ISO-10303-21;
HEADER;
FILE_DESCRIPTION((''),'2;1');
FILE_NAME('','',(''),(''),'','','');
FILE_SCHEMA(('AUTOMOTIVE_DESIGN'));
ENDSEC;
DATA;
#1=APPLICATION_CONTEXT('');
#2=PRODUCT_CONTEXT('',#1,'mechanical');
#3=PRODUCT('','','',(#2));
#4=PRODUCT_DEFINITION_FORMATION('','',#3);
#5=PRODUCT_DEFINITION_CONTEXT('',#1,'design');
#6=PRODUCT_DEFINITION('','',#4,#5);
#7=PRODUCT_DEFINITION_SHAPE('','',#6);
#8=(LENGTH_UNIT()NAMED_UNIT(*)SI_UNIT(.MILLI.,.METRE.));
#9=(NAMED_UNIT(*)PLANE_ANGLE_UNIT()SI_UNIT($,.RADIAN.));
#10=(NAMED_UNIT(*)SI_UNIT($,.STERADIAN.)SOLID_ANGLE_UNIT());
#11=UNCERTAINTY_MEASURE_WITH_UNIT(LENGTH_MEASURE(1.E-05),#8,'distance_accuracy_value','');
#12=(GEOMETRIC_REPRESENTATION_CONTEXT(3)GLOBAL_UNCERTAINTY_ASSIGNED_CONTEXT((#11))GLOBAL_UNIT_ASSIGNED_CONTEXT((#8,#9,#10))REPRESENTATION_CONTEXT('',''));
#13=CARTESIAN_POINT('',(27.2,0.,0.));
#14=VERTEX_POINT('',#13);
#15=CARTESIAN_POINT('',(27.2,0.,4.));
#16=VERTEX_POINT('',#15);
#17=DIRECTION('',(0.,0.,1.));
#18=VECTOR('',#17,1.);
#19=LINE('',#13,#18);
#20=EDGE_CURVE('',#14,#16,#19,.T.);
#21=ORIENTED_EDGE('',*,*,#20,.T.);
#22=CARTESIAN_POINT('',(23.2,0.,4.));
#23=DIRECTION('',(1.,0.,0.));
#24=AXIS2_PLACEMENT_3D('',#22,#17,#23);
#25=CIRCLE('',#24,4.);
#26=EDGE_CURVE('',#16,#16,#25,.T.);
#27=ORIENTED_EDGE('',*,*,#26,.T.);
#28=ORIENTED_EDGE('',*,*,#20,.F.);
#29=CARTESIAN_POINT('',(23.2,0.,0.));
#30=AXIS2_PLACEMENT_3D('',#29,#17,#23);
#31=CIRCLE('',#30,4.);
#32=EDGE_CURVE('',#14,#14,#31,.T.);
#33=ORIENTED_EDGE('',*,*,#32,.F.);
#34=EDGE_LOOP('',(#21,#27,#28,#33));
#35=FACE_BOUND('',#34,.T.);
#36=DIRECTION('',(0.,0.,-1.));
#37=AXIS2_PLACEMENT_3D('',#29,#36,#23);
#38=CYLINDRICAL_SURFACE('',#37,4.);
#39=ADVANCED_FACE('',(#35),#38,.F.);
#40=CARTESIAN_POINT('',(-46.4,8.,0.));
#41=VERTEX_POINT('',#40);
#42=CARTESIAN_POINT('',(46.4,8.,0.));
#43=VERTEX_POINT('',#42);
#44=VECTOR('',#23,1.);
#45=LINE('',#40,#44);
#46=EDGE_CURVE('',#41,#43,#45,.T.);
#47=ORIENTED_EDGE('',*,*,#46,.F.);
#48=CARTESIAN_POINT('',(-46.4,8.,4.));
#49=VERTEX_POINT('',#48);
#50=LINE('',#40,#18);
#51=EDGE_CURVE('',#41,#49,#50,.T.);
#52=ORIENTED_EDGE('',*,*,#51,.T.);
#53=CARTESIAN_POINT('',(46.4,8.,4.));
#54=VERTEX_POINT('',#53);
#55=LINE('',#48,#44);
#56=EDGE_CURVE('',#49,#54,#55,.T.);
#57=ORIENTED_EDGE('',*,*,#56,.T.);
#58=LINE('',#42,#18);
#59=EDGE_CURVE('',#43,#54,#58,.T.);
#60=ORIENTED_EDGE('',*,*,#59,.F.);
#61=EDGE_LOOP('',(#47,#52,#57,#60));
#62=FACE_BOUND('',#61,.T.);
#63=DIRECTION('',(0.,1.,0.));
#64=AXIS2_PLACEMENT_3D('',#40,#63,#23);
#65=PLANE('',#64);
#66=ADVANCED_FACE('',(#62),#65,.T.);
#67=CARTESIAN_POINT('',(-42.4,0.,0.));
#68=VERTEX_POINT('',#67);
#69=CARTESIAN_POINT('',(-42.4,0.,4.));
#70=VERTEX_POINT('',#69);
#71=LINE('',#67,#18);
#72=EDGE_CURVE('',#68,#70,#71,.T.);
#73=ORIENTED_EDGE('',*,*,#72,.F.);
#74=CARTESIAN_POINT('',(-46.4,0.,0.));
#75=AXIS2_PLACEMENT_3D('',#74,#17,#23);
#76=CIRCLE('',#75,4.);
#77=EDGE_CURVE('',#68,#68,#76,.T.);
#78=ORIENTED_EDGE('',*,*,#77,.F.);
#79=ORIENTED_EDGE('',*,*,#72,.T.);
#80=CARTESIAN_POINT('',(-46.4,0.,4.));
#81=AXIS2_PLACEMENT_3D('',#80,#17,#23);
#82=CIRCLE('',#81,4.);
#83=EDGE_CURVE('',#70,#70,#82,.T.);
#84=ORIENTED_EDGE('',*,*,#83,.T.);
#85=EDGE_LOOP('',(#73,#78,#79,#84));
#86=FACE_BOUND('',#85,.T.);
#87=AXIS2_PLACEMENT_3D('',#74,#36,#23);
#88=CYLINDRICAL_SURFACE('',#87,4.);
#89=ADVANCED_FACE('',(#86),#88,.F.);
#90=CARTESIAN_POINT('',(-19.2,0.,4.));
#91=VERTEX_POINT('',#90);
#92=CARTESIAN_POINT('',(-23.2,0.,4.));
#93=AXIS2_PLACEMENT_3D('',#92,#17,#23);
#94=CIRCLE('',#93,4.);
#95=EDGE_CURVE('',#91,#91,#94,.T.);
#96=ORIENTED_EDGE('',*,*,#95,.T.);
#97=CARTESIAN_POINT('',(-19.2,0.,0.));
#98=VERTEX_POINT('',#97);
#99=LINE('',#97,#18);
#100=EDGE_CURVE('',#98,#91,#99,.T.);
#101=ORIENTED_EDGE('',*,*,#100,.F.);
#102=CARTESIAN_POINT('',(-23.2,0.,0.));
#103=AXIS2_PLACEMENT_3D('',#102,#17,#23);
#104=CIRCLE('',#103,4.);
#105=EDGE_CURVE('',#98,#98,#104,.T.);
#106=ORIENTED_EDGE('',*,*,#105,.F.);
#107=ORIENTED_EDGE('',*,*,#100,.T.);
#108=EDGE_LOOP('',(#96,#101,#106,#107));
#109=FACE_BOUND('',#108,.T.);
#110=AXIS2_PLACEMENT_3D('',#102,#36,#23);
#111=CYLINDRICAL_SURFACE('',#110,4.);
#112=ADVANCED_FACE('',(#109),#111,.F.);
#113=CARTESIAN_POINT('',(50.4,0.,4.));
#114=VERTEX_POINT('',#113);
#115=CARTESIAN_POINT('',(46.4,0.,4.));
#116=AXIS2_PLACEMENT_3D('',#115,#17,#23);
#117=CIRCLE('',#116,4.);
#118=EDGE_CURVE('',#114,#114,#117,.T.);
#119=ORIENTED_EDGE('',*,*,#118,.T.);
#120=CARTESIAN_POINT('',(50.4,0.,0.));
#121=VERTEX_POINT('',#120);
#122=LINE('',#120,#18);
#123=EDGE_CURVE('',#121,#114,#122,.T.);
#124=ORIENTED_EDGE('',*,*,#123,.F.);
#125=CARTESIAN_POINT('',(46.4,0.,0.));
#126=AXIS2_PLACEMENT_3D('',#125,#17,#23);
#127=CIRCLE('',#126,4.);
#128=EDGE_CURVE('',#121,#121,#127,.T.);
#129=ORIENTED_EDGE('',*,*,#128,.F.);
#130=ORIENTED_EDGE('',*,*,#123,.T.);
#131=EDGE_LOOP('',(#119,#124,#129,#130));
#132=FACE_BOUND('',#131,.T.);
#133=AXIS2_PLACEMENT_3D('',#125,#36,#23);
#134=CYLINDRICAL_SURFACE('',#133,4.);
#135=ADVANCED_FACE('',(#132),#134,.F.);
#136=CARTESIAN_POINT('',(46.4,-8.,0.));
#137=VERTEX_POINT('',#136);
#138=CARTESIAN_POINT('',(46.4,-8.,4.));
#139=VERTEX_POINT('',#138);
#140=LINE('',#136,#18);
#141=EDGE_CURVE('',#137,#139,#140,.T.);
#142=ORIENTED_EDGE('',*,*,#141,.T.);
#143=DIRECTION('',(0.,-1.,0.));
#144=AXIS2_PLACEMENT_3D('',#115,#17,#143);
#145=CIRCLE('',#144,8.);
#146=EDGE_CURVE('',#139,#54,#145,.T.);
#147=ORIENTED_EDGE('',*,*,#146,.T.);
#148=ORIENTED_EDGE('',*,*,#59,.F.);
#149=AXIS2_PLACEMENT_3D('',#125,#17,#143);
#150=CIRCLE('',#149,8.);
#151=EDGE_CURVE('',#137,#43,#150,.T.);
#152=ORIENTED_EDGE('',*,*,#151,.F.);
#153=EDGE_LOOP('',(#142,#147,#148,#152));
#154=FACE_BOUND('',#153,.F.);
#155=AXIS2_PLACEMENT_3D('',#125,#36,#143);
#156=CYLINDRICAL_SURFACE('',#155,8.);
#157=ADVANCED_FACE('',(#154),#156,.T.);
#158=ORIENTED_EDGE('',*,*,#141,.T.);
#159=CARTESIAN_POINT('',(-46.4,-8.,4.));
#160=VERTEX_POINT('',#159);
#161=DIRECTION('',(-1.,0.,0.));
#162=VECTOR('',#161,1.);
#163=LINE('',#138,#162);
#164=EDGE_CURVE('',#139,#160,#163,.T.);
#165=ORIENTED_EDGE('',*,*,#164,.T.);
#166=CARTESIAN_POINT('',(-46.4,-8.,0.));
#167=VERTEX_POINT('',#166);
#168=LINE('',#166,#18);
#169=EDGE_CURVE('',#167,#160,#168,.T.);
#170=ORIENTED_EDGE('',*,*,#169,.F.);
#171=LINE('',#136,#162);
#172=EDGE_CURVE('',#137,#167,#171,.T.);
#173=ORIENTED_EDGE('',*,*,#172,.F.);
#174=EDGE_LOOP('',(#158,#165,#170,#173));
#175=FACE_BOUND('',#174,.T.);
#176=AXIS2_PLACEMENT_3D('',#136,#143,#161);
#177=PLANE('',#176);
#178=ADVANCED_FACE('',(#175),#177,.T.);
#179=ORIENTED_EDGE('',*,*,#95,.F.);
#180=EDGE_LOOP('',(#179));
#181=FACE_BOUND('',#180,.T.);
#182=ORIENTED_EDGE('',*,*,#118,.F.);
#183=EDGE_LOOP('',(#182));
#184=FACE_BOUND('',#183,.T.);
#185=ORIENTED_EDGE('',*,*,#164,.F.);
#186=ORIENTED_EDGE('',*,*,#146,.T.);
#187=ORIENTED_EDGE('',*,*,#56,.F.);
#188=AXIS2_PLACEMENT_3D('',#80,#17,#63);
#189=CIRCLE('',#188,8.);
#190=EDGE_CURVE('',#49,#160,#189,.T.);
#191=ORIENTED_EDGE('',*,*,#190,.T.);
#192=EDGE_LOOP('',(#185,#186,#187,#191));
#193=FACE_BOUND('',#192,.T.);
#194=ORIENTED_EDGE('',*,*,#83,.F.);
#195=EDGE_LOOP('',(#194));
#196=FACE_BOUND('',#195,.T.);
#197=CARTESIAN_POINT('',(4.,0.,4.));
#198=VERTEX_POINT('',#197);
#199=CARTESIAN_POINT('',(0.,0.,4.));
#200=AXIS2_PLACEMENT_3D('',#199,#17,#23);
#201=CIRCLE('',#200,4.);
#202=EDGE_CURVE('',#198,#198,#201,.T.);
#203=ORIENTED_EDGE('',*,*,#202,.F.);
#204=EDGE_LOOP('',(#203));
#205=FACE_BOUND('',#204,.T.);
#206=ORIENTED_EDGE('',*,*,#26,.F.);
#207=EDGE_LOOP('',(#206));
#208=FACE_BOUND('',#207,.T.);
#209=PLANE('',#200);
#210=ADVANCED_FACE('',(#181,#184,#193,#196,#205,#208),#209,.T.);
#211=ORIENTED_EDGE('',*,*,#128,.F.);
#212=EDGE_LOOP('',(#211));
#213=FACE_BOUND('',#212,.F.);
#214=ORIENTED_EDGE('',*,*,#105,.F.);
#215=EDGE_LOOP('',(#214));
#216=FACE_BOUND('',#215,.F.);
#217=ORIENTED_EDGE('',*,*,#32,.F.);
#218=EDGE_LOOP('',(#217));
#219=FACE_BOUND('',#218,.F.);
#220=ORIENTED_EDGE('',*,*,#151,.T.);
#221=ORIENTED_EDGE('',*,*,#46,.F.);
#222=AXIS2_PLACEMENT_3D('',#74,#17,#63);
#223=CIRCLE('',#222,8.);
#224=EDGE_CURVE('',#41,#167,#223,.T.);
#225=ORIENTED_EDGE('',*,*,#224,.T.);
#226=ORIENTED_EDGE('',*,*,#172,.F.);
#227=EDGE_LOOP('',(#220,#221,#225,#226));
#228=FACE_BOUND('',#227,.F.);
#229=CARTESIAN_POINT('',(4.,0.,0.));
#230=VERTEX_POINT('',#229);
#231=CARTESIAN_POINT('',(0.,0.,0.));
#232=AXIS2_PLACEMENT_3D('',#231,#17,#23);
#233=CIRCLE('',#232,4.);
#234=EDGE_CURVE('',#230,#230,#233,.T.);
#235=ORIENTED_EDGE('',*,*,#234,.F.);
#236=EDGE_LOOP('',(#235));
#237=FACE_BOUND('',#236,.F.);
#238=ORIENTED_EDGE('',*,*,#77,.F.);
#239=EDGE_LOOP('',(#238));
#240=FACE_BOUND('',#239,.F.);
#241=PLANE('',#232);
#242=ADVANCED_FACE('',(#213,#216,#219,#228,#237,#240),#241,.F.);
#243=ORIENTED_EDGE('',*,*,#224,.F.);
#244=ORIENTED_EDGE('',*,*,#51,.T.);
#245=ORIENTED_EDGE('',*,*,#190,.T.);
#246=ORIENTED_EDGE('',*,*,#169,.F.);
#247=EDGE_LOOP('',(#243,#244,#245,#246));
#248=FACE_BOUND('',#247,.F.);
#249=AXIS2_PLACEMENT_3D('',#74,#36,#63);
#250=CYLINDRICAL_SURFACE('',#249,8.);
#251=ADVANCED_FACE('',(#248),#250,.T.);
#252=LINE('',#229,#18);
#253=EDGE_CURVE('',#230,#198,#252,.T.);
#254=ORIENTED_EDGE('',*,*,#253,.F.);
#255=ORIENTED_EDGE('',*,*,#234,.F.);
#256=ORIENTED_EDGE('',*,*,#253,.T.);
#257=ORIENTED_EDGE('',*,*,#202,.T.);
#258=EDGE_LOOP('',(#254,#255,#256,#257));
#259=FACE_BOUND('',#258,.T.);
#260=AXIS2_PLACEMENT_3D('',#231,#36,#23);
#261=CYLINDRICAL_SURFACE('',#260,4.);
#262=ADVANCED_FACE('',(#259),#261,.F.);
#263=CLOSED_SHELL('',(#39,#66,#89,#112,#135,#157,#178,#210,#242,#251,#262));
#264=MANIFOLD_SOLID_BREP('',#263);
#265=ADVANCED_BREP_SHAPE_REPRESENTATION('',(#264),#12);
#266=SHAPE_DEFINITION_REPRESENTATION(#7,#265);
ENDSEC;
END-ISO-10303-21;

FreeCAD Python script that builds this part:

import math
import FreeCAD as App
import Part
import Sketcher
from FreeCAD import Vector

doc = App.newDocument("Part")
body = doc.addObject("PartDesign::Body", "Body")

sketch1 = body.newObject("Sketcher::SketchObject", "Sketch")
sketch1.AttachmentSupport = (doc.getObject("XY_Plane"), [""])
sketch1.MapMode = "FlatFace"
sketch1.addGeometry(Part.LineSegment(Vector(46.4, 8, 0), Vector(-46.4, 8, 0)), False)
sketch1.addGeometry(Part.ArcOfCircle(Part.Circle(Vector(-46.4, 0, 0), Vector(0, 0, 1), 8), math.radians(90), math.radians(270)), False)
sketch1.addGeometry(Part.LineSegment(Vector(-46.4, -8, 0), Vector(46.4, -8, 0)), False)
sketch1.addGeometry(Part.ArcOfCircle(Part.Circle(Vector(46.4, 0, 0), Vector(0, 0, 1), 8), math.radians(-90), math.radians(90)), False)
sketch1.addGeometry(Part.Circle(Vector(-46.4, 0, 0), Vector(0, 0, 1), 4), False)
sketch1.addGeometry(Part.Circle(Vector(-23.2, 0, 0), Vector(0, 0, 1), 4), False)
sketch1.addGeometry(Part.Circle(Vector(0, 0, 0), Vector(0, 0, 1), 4), False)
sketch1.addGeometry(Part.Circle(Vector(23.2, 0, 0), Vector(0, 0, 1), 4), False)
sketch1.addGeometry(Part.Circle(Vector(46.4, 0, 0), Vector(0, 0, 1), 4), False)
sketch1.addConstraint(Sketcher.Constraint("Tangent", 0, 2, 1, 1))
sketch1.addConstraint(Sketcher.Constraint("Tangent", 1, 2, 2, 1))
sketch1.addConstraint(Sketcher.Constraint("Tangent", 2, 2, 3, 1))
sketch1.addConstraint(Sketcher.Constraint("Tangent", 3, 2, 0, 1))
sketch1.addConstraint(Sketcher.Constraint("Horizontal", 0))
sketch1.addConstraint(Sketcher.Constraint("Horizontal", 2))
sketch1.addConstraint(Sketcher.Constraint("Coincident", 6, 3, -1, 1))
sketch1.addConstraint(Sketcher.Constraint("Coincident", 4, 3, 1, 3))
sketch1.addConstraint(Sketcher.Constraint("Coincident", 8, 3, 3, 3))
sketch1.addConstraint(Sketcher.Constraint("Equal", 4, 5))
sketch1.addConstraint(Sketcher.Constraint("Equal", 5, 6))
sketch1.addConstraint(Sketcher.Constraint("Equal", 6, 7))
sketch1.addConstraint(Sketcher.Constraint("Equal", 7, 8))
sketch1.addConstraint(Sketcher.Constraint("Symmetric", 1, 3, 3, 3, -1, 1))
sketch1.addConstraint(Sketcher.Constraint("Symmetric", 5, 3, 7, 3, -1, 1))
sketch1.addConstraint(Sketcher.Constraint("PointOnObject", 5, 3, -1))
sketch1.addConstraint(Sketcher.Constraint("Diameter", 4, 8.0))
sketch1.addConstraint(Sketcher.Constraint("Radius", 1, 8.0))
sketch1.addConstraint(Sketcher.Constraint("DistanceX", 5, 3, -1, 1, 23.2))
sketch1.addConstraint(Sketcher.Constraint("DistanceX", 1, 3, 5, 3, 23.2))
pad1 = body.newObject("PartDesign::Pad", "Pad")
pad1.Profile = sketch1
pad1.Length = 4

doc.recompute()
